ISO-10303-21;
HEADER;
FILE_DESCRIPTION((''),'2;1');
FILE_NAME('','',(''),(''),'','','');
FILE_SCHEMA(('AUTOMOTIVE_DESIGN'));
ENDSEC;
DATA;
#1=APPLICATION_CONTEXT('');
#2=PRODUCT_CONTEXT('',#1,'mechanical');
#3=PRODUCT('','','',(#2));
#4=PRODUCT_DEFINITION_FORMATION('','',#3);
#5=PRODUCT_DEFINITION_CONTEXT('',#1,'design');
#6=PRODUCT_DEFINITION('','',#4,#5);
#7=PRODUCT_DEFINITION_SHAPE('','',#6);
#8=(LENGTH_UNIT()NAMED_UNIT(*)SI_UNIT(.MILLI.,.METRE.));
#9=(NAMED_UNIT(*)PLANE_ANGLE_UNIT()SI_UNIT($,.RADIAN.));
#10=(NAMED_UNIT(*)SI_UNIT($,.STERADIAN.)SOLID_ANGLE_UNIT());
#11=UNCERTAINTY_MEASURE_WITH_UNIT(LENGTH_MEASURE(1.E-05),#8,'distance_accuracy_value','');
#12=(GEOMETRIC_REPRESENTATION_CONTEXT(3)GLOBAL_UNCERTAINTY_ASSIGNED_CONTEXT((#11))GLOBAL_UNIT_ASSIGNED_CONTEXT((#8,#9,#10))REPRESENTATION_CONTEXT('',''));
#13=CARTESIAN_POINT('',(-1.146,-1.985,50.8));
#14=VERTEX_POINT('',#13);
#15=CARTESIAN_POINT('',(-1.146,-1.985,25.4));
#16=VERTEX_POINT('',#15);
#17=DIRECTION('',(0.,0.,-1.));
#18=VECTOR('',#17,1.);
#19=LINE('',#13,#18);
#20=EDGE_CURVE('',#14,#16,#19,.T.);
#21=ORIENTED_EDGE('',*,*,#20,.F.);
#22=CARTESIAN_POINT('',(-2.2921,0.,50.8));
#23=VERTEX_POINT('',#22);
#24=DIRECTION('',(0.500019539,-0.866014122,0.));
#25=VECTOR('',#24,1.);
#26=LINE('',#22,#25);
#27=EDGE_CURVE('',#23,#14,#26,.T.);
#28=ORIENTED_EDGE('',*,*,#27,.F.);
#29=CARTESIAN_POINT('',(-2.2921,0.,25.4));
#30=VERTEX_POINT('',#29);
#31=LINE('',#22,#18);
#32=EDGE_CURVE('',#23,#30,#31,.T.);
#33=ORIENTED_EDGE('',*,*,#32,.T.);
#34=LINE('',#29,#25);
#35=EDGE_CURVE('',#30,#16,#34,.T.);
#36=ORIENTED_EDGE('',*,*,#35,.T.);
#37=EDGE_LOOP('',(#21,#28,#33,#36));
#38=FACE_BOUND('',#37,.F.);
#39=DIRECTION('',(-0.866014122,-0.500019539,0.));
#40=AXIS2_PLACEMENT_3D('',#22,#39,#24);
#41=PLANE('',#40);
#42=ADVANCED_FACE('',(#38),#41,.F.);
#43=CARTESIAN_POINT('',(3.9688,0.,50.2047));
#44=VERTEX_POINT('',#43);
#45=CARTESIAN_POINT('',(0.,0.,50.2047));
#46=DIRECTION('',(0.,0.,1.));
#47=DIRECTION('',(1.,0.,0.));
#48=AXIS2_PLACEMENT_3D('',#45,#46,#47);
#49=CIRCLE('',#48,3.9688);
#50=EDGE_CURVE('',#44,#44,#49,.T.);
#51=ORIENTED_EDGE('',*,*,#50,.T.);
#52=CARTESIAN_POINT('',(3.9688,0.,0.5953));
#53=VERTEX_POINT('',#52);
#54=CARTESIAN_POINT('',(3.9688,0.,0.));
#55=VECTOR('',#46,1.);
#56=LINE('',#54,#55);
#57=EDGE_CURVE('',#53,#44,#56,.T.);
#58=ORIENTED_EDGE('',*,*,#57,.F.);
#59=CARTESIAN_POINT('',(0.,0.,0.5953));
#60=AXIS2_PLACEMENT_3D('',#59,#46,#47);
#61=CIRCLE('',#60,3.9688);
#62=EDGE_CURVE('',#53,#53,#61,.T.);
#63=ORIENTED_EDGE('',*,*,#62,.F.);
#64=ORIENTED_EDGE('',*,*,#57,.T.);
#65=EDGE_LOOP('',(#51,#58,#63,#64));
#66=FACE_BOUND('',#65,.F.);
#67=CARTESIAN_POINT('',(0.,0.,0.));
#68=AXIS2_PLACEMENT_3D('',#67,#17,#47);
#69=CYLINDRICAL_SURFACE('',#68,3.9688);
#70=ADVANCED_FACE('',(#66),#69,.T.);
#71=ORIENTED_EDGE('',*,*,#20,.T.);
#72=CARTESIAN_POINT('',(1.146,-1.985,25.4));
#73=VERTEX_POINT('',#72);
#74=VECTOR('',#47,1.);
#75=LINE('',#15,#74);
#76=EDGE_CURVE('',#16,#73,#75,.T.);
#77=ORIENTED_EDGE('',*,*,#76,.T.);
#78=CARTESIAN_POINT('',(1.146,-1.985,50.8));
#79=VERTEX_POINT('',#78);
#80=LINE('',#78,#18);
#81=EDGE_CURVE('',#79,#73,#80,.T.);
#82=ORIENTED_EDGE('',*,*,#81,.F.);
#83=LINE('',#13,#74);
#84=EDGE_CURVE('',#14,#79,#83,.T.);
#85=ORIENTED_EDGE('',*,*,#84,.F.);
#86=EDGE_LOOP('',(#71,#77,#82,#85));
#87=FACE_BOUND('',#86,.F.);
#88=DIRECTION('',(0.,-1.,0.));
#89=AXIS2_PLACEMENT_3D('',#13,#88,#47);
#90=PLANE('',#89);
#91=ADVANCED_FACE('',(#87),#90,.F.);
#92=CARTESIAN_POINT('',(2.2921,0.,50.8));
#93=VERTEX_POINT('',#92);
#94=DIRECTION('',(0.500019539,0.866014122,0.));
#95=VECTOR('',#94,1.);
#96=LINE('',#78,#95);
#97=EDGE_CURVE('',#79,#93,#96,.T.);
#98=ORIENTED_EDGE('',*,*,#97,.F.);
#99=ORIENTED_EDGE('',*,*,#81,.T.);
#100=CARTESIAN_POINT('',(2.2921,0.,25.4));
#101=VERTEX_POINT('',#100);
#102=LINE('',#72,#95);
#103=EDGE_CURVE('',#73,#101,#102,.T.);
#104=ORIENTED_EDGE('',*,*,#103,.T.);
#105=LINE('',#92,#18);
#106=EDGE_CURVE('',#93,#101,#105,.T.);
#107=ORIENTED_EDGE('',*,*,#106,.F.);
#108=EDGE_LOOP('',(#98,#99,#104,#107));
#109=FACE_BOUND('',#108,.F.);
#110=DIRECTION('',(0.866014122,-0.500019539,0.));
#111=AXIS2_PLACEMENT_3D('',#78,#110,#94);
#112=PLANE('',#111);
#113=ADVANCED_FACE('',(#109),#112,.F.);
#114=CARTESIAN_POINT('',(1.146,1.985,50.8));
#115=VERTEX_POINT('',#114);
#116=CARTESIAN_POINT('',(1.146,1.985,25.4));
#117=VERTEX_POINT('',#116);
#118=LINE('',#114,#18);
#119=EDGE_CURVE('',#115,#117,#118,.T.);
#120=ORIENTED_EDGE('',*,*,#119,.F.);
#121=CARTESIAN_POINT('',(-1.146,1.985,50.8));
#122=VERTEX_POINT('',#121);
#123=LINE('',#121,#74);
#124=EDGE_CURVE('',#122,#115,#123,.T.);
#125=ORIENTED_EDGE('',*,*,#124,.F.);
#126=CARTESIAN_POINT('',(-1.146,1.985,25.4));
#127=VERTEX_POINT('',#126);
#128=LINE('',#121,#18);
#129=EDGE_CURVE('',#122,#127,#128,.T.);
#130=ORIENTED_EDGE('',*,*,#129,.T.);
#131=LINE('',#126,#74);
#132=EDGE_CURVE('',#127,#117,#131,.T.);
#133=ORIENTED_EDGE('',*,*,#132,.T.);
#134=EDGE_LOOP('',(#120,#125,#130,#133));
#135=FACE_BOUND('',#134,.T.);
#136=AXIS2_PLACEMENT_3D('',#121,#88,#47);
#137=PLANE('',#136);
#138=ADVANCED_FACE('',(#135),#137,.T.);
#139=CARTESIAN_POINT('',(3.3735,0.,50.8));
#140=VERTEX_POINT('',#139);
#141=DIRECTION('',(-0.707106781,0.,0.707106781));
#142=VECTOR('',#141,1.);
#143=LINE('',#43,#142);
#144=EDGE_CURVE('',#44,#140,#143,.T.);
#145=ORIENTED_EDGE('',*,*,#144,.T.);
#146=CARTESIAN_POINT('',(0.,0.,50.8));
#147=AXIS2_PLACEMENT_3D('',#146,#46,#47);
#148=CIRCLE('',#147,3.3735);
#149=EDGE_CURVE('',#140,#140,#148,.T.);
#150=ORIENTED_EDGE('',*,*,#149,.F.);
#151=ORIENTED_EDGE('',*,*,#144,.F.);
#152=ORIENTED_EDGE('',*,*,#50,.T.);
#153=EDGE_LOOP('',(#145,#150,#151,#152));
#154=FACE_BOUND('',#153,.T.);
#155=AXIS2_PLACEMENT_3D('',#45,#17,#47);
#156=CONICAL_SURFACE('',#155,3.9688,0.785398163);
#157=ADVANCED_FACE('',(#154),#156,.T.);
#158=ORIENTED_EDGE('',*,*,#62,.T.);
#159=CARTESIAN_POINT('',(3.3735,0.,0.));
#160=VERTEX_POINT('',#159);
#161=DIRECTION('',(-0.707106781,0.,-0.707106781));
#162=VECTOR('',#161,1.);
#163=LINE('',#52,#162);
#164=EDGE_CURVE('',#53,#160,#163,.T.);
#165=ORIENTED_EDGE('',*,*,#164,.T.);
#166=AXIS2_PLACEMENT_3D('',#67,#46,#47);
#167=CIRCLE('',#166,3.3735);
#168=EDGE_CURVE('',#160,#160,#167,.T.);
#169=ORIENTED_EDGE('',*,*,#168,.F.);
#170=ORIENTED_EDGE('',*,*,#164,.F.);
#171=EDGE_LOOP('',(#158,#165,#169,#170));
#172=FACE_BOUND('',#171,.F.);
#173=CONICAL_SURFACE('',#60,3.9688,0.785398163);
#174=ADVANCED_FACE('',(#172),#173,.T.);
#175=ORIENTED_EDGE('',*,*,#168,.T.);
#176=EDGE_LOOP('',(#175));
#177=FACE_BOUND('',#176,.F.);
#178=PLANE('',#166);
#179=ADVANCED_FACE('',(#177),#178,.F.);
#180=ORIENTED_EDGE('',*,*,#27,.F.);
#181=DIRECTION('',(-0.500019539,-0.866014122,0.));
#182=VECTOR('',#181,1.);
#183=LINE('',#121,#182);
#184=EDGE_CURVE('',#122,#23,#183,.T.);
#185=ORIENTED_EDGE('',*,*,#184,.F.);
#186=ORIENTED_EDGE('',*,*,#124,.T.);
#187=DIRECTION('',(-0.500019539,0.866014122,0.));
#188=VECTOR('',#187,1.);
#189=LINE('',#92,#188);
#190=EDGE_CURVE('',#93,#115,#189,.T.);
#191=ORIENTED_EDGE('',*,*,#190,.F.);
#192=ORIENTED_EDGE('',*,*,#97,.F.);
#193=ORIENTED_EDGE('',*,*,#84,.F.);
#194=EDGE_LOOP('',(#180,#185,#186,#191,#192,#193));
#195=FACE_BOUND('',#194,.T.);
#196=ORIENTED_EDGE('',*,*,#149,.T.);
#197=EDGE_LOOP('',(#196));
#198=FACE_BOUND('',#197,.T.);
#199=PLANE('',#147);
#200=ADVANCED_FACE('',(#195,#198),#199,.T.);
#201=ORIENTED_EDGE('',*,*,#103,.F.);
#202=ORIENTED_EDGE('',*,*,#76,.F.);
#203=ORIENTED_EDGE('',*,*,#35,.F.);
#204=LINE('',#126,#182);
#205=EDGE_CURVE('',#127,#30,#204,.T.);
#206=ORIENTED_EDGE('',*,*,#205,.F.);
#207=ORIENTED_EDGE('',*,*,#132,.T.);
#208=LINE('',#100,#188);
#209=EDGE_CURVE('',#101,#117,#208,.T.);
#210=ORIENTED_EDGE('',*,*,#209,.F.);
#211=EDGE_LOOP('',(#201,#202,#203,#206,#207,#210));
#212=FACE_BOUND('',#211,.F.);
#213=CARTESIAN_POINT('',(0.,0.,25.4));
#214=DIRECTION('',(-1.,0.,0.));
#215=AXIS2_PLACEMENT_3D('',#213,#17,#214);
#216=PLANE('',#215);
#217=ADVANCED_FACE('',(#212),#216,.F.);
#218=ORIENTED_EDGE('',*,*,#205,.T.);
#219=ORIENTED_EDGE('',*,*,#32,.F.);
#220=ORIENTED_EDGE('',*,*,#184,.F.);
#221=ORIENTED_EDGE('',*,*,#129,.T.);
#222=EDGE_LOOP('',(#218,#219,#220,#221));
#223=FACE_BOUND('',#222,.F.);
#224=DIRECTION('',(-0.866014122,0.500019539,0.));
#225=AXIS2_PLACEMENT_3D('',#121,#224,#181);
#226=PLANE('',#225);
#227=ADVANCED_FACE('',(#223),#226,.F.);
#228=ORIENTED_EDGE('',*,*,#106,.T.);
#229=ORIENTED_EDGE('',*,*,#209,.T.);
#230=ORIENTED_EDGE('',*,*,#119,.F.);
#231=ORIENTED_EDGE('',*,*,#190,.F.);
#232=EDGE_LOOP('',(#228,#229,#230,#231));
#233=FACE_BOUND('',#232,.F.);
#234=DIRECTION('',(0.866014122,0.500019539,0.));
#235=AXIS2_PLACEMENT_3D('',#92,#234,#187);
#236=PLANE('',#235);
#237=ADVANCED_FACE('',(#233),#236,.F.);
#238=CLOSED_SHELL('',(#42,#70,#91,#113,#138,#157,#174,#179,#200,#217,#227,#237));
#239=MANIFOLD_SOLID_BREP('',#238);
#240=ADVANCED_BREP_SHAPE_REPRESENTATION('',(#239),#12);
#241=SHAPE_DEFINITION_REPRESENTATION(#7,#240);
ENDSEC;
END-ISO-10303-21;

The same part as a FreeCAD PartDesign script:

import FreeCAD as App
import Part
import Sketcher
Q = App.Units.Quantity


def edges_at(feature, points):
    """Names of the edges that pass closest to the given points."""
    edges = feature.Shape.Edges
    near = lambda p: min(range(len(edges)), key=lambda i: edges[i].distToShape(Part.Vertex(*p))[0])
    return sorted({f"Edge{near(p) + 1}" for p in points})


def add_polygon(sketch, points):
    """Adds a closed chain of lines whose ends are joined by coincident constraints."""
    first, n = sketch.GeometryCount, len(points)
    for a, b in zip(points, points[1:] + points[:1]):
        sketch.addGeometry(Part.LineSegment(App.Vector(*a, 0), App.Vector(*b, 0)), False)
    for i in range(n):
        sketch.addConstraint(Sketcher.Constraint("Coincident", first + i, 2, first + (i + 1) % n, 1))

doc = App.newDocument("Part")
body = doc.addObject("PartDesign::Body", "Body")

sketch1 = body.newObject("Sketcher::SketchObject", "Sketch")
sketch1.AttachmentSupport = (doc.getObject("XY_Plane"), [""])
sketch1.MapMode = "FlatFace"
sketch1.addGeometry(Part.Circle(App.Vector(0, 0, 0), App.Vector(0, 0, 1), 4), False)
sketch1.addConstraint(Sketcher.Constraint("Coincident", 0, 3, -1, 1))
sketch1.addConstraint(Sketcher.Constraint("Diameter", 0, Q("0.3125 in")))
pad1 = body.newObject("PartDesign::Pad", "Pad")
pad1.Profile = sketch1
pad1.Length = Q("2 in")
doc.recompute()

chamfer = body.newObject("PartDesign::Chamfer", "Chamfer")
chamfer.Base = (pad1, edges_at(pad1, [(-3.969, 0, 0), (-3.969, 0, 50.8)]))
chamfer.Size = 0.5953

sketch2 = body.newObject("Sketcher::SketchObject", "Sketch001")
sketch2.AttachmentSupport = (doc.getObject("XY_Plane"), [""])
sketch2.MapMode = "FlatFace"
sketch2.AttachmentOffset = App.Placement(App.Vector(0, 0, 2 * 25.4), App.Rotation())
add_polygon(sketch2, [(1.1, 2), (-1.1, 2), (-2.3, 0), (-1.1, -2), (1.1, -2), (2.3, 0)])
sketch2.addConstraint(Sketcher.Constraint("Horizontal", 0))
sketch2.addConstraint(Sketcher.Constraint("Horizontal", 3))
sketch2.addConstraint(Sketcher.Constraint("Symmetric", 0, 2, 3, 2, -1, 1))
sketch2.addConstraint(Sketcher.Constraint("Symmetric", 1, 2, 4, 2, -1, 1))
sketch2.addConstraint(Sketcher.Constraint("PointOnObject", 1, 2, -1))
sketch2.addConstraint(Sketcher.Constraint("Parallel", 2, 5))
sketch2.addConstraint(Sketcher.Constraint("Vertical", 0, 2, 2, 2))
sketch2.addConstraint(Sketcher.Constraint("DistanceX", 0, 2, 0, 1, 2.292))
sketch2.addConstraint(Sketcher.Constraint("DistanceY", 2, 2, 0, 2, Q("0.1563 in")))
sketch2.addConstraint(Sketcher.Constraint("Distance", 1, 2.292))
pocket1 = body.newObject("PartDesign::Pocket", "Pocket")
pocket1.Profile = sketch2
pocket1.Length = Q("1 in")

doc.recompute()
